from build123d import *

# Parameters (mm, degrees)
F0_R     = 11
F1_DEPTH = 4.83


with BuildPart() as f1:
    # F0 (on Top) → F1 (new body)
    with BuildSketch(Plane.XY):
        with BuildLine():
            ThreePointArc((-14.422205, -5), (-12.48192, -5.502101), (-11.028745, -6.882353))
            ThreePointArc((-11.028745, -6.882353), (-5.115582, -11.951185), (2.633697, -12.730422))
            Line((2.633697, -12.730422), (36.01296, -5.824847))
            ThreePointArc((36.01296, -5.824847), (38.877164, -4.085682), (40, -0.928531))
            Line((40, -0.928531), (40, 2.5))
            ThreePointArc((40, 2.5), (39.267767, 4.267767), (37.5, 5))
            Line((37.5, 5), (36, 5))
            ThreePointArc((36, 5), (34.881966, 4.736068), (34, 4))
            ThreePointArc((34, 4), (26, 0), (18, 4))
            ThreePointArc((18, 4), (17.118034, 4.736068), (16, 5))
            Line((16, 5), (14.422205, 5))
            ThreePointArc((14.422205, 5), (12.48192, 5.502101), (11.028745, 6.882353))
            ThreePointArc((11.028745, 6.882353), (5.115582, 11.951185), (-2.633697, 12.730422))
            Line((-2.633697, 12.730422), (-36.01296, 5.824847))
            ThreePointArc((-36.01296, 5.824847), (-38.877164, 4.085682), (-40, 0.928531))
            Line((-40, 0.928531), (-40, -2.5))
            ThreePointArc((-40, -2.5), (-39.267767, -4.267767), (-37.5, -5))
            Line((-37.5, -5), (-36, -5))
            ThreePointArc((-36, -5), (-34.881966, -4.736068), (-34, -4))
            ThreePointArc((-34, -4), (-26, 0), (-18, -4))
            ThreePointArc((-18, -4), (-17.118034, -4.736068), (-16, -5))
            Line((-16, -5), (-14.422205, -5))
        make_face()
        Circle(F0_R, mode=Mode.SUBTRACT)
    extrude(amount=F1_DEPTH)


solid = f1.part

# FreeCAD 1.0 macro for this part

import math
import FreeCAD as App
import Part
import Sketcher
from FreeCAD import Vector
Q = App.Units.Quantity

doc = App.newDocument("Part")
body = doc.addObject("PartDesign::Body", "Body")

sketch1 = body.newObject("Sketcher::SketchObject", "Sketch")
sketch1.AttachmentSupport = (doc.getObject("XY_Plane"), [""])
sketch1.MapMode = "FlatFace"
sketch1.addGeometry([
    Part.ArcOfCircle(Part.Circle(Vector(-14.422203, -8.999997, 0), Vector(0, 0, 1), 3.999997), math.radians(31.965693), math.radians(90.000024)),
    Part.ArcOfCircle(Part.Circle(Vector(0, 0, 0), Vector(0, 0, 1), 13), math.radians(-148.034282), math.radians(-78.311423)),
    Part.LineSegment(Vector(2.633697, -12.730422, 0), Vector(36.01296, -5.824847, 0)),
    Part.ArcOfCircle(Part.Circle(Vector(35.000001, -0.928532, 0), Vector(0, 0, 1), 4.999999), math.radians(-78.31144), math.radians(0.000012)),
    Part.LineSegment(Vector(40, -0.928531, 0), Vector(40, 2.5, 0)),
    Part.ArcOfCircle(Part.Circle(Vector(37.5, 2.5, 0), Vector(0, 0, 1), 2.5), math.radians(-0.000004), math.radians(90.000004)),
    Part.LineSegment(Vector(37.5, 5, 0), Vector(36, 5, 0)),
    Part.ArcOfCircle(Part.Circle(Vector(36, 2.5, 0), Vector(0, 0, 1), 2.5), math.radians(89.999998), math.radians(143.130105)),
    Part.ArcOfCircle(Part.Circle(Vector(26, 10, 0), Vector(0, 0, 1), 10), math.radians(-143.130102), math.radians(-36.869898)),
    Part.ArcOfCircle(Part.Circle(Vector(16, 2.5, 0), Vector(0, 0, 1), 2.5), math.radians(36.869895), math.radians(90.000002)),
    Part.LineSegment(Vector(16, 5, 0), Vector(14.422205, 5, 0)),
    Part.ArcOfCircle(Part.Circle(Vector(14.422203, 8.999997, 0), Vector(0, 0, 1), 3.999997), math.radians(-148.034307), math.radians(-89.999976)),
    Part.ArcOfCircle(Part.Circle(Vector(0, 0, 0), Vector(0, 0, 1), 13), math.radians(31.965718), math.radians(101.688577)),
    Part.LineSegment(Vector(-2.633697, 12.730422, 0), Vector(-36.01296, 5.824847, 0)),
    Part.ArcOfCircle(Part.Circle(Vector(-35.000001, 0.928532, 0), Vector(0, 0, 1), 4.999999), math.radians(101.68856), math.radians(180.000012)),
    Part.LineSegment(Vector(-40, 0.928531, 0), Vector(-40, -2.5, 0)),
    Part.ArcOfCircle(Part.Circle(Vector(-37.5, -2.5, 0), Vector(0, 0, 1), 2.5), math.radians(179.999996), math.radians(270.000004)),
    Part.LineSegment(Vector(-37.5, -5, 0), Vector(-36, -5, 0)),
    Part.ArcOfCircle(Part.Circle(Vector(-36, -2.5, 0), Vector(0, 0, 1), 2.5), math.radians(-90.000002), math.radians(-36.869895)),
    Part.ArcOfCircle(Part.Circle(Vector(-26, -10, 0), Vector(0, 0, 1), 10), math.radians(36.869898), math.radians(143.130102)),
    Part.ArcOfCircle(Part.Circle(Vector(-16, -2.5, 0), Vector(0, 0, 1), 2.5), math.radians(-143.130105), math.radians(-89.999998)),
    Part.LineSegment(Vector(-16, -5, 0), Vector(-14.422205, -5, 0)),
    Part.Circle(Vector(0, 0, 0), Vector(0, 0, 1), 11),
], False)
sketch1.addConstraint([
    Sketcher.Constraint("Coincident", 0, 1, 1, 1),
    Sketcher.Constraint("Coincident", 1, 2, 2, 1),
    Sketcher.Constraint("Coincident", 2, 2, 3, 1),
    Sketcher.Constraint("Coincident", 3, 2, 4, 1),
    Sketcher.Constraint("Coincident", 4, 2, 5, 1),
    Sketcher.Constraint("Coincident", 5, 2, 6, 1),
    Sketcher.Constraint("Coincident", 6, 2, 7, 1),
    Sketcher.Constraint("Coincident", 7, 2, 8, 2),
    Sketcher.Constraint("Coincident", 8, 1, 9, 1),
    Sketcher.Constraint("Coincident", 9, 2, 10, 1),
    Sketcher.Constraint("Coincident", 10, 2, 11, 2),
    Sketcher.Constraint("Coincident", 11, 1, 12, 1),
    Sketcher.Constraint("Coincident", 12, 2, 13, 1),
    Sketcher.Constraint("Coincident", 13, 2, 14, 1),
    Sketcher.Constraint("Coincident", 14, 2, 15, 1),
    Sketcher.Constraint("Coincident", 15, 2, 16, 1),
    Sketcher.Constraint("Coincident", 16, 2, 17, 1),
    Sketcher.Constraint("Coincident", 17, 2, 18, 1),
    Sketcher.Constraint("Coincident", 18, 2, 19, 2),
    Sketcher.Constraint("Coincident", 19, 1, 20, 1),
    Sketcher.Constraint("Coincident", 20, 2, 21, 1),
    Sketcher.Constraint("Coincident", 21, 2, 0, 2),
    Sketcher.Constraint("Vertical", 4),
    Sketcher.Constraint("Horizontal", 6),
    Sketcher.Constraint("Horizontal", 10),
    Sketcher.Constraint("Vertical", 15),
    Sketcher.Constraint("Horizontal", 17),
    Sketcher.Constraint("Horizontal", 21),
    Sketcher.Constraint("Coincident", 1, 3, -1, 1),
    Sketcher.Constraint("Coincident", 12, 3, -1, 1),
    Sketcher.Constraint("Coincident", 22, 3, -1, 1),
    Sketcher.Constraint("Diameter", 22, Q("22 mm")),
    Sketcher.Constraint("Radius", 1, Q("13 mm")),
    Sketcher.Constraint("Radius", 3, Q("4.999999 mm")),
    Sketcher.Constraint("Radius", 8, Q("10 mm")),
    Sketcher.Constraint("Radius", 12, Q("13 mm")),
    Sketcher.Constraint("Radius", 14, Q("4.999999 mm")),
    Sketcher.Constraint("Radius", 19, Q("10 mm")),
    Sketcher.Constraint("Radius", 5, Q("2.5 mm")),
    Sketcher.Constraint("Radius", 7, Q("2.5 mm")),
    Sketcher.Constraint("Radius", 9, Q("2.5 mm")),
    Sketcher.Constraint("Radius", 16, Q("2.5 mm")),
    Sketcher.Constraint("Radius", 18, Q("2.5 mm")),
    Sketcher.Constraint("Radius", 20, Q("2.5 mm")),
    Sketcher.Constraint("DistanceX", 6, 2, 6, 1, Q("1.5 mm")),
    Sketcher.Constraint("DistanceX", 17, 1, 17, 2, Q("1.5 mm")),
    Sketcher.Constraint("DistanceX", -1, 1, 3, 3, Q("35.000001 mm")),
    Sketcher.Constraint("DistanceX", -1, 1, 7, 3, Q("36 mm")),
    Sketcher.Constraint("DistanceX", -1, 1, 8, 3, Q("26 mm")),
    Sketcher.Constraint("DistanceY", -1, 1, 8, 3, Q("10 mm")),
    Sketcher.Constraint("DistanceX", -1, 1, 9, 3, Q("16 mm")),
    Sketcher.Constraint("DistanceX", 14, 3, -1, 1, Q("35.000001 mm")),
    Sketcher.Constraint("DistanceX", 18, 3, -1, 1, Q("36 mm")),
    Sketcher.Constraint("DistanceX", 19, 3, -1, 1, Q("26 mm")),
    Sketcher.Constraint("DistanceY", 19, 3, -1, 1, Q("10 mm")),
    Sketcher.Constraint("DistanceX", 20, 3, -1, 1, Q("16 mm")),
    Sketcher.Constraint("DistanceX", -1, 1, 6, 2, Q("36 mm")),
    Sketcher.Constraint("DistanceX", -1, 1, 7, 2, Q("34 mm")),
    Sketcher.Constraint("DistanceX", -1, 1, 8, 1, Q("18 mm")),
    Sketcher.Constraint("DistanceX", -1, 1, 9, 2, Q("16 mm")),
    Sketcher.Constraint("DistanceX", 17, 2, -1, 1, Q("36 mm")),
    Sketcher.Constraint("DistanceX", 18, 2, -1, 1, Q("34 mm")),
    Sketcher.Constraint("DistanceX", 19, 1, -1, 1, Q("18 mm")),
    Sketcher.Constraint("DistanceX", 20, 2, -1, 1, Q("16 mm")),
    Sketcher.Constraint("DistanceY", -1, 1, 4, 2, Q("2.5 mm")),
    Sketcher.Constraint("DistanceY", 15, 2, -1, 1, Q("2.5 mm")),
    Sketcher.Constraint("Radius", 0, Q("3.999997 mm")),
    Sketcher.Constraint("Radius", 11, Q("3.999997 mm")),
    Sketcher.Constraint("Distance", 2, Q("34.086099 mm")),
    Sketcher.Constraint("Distance", 13, Q("34.086099 mm")),
    Sketcher.Constraint("DistanceY", 4, 1, 4, 2, Q("3.428531 mm")),
    Sketcher.Constraint("DistanceY", 15, 2, 15, 1, Q("3.428531 mm")),
    Sketcher.Constraint("DistanceX", 0, 3, 1, 2, Q("17.0559 mm")),
    Sketcher.Constraint("DistanceX", 12, 2, 11, 3, Q("17.0559 mm")),
    Sketcher.Constraint("DistanceX", 10, 2, 10, 1, Q("1.577795 mm")),
    Sketcher.Constraint("DistanceX", 21, 1, 21, 2, Q("1.577795 mm")),
    Sketcher.Constraint("DistanceX", -1, 1, 2, 2, Q("36.01296 mm")),
    Sketcher.Constraint("DistanceX", 13, 2, -1, 1, Q("36.01296 mm")),
    Sketcher.Constraint("DistanceX", 0, 3, 0, 1, Q("3.393458 mm")),
    Sketcher.Constraint("DistanceX", 11, 1, 10, 2, Q("3.39346 mm")),
])
pad1 = body.newObject("PartDesign::Pad", "Pad")
pad1.Profile = sketch1
pad1.Length = 4.83

doc.recompute()
